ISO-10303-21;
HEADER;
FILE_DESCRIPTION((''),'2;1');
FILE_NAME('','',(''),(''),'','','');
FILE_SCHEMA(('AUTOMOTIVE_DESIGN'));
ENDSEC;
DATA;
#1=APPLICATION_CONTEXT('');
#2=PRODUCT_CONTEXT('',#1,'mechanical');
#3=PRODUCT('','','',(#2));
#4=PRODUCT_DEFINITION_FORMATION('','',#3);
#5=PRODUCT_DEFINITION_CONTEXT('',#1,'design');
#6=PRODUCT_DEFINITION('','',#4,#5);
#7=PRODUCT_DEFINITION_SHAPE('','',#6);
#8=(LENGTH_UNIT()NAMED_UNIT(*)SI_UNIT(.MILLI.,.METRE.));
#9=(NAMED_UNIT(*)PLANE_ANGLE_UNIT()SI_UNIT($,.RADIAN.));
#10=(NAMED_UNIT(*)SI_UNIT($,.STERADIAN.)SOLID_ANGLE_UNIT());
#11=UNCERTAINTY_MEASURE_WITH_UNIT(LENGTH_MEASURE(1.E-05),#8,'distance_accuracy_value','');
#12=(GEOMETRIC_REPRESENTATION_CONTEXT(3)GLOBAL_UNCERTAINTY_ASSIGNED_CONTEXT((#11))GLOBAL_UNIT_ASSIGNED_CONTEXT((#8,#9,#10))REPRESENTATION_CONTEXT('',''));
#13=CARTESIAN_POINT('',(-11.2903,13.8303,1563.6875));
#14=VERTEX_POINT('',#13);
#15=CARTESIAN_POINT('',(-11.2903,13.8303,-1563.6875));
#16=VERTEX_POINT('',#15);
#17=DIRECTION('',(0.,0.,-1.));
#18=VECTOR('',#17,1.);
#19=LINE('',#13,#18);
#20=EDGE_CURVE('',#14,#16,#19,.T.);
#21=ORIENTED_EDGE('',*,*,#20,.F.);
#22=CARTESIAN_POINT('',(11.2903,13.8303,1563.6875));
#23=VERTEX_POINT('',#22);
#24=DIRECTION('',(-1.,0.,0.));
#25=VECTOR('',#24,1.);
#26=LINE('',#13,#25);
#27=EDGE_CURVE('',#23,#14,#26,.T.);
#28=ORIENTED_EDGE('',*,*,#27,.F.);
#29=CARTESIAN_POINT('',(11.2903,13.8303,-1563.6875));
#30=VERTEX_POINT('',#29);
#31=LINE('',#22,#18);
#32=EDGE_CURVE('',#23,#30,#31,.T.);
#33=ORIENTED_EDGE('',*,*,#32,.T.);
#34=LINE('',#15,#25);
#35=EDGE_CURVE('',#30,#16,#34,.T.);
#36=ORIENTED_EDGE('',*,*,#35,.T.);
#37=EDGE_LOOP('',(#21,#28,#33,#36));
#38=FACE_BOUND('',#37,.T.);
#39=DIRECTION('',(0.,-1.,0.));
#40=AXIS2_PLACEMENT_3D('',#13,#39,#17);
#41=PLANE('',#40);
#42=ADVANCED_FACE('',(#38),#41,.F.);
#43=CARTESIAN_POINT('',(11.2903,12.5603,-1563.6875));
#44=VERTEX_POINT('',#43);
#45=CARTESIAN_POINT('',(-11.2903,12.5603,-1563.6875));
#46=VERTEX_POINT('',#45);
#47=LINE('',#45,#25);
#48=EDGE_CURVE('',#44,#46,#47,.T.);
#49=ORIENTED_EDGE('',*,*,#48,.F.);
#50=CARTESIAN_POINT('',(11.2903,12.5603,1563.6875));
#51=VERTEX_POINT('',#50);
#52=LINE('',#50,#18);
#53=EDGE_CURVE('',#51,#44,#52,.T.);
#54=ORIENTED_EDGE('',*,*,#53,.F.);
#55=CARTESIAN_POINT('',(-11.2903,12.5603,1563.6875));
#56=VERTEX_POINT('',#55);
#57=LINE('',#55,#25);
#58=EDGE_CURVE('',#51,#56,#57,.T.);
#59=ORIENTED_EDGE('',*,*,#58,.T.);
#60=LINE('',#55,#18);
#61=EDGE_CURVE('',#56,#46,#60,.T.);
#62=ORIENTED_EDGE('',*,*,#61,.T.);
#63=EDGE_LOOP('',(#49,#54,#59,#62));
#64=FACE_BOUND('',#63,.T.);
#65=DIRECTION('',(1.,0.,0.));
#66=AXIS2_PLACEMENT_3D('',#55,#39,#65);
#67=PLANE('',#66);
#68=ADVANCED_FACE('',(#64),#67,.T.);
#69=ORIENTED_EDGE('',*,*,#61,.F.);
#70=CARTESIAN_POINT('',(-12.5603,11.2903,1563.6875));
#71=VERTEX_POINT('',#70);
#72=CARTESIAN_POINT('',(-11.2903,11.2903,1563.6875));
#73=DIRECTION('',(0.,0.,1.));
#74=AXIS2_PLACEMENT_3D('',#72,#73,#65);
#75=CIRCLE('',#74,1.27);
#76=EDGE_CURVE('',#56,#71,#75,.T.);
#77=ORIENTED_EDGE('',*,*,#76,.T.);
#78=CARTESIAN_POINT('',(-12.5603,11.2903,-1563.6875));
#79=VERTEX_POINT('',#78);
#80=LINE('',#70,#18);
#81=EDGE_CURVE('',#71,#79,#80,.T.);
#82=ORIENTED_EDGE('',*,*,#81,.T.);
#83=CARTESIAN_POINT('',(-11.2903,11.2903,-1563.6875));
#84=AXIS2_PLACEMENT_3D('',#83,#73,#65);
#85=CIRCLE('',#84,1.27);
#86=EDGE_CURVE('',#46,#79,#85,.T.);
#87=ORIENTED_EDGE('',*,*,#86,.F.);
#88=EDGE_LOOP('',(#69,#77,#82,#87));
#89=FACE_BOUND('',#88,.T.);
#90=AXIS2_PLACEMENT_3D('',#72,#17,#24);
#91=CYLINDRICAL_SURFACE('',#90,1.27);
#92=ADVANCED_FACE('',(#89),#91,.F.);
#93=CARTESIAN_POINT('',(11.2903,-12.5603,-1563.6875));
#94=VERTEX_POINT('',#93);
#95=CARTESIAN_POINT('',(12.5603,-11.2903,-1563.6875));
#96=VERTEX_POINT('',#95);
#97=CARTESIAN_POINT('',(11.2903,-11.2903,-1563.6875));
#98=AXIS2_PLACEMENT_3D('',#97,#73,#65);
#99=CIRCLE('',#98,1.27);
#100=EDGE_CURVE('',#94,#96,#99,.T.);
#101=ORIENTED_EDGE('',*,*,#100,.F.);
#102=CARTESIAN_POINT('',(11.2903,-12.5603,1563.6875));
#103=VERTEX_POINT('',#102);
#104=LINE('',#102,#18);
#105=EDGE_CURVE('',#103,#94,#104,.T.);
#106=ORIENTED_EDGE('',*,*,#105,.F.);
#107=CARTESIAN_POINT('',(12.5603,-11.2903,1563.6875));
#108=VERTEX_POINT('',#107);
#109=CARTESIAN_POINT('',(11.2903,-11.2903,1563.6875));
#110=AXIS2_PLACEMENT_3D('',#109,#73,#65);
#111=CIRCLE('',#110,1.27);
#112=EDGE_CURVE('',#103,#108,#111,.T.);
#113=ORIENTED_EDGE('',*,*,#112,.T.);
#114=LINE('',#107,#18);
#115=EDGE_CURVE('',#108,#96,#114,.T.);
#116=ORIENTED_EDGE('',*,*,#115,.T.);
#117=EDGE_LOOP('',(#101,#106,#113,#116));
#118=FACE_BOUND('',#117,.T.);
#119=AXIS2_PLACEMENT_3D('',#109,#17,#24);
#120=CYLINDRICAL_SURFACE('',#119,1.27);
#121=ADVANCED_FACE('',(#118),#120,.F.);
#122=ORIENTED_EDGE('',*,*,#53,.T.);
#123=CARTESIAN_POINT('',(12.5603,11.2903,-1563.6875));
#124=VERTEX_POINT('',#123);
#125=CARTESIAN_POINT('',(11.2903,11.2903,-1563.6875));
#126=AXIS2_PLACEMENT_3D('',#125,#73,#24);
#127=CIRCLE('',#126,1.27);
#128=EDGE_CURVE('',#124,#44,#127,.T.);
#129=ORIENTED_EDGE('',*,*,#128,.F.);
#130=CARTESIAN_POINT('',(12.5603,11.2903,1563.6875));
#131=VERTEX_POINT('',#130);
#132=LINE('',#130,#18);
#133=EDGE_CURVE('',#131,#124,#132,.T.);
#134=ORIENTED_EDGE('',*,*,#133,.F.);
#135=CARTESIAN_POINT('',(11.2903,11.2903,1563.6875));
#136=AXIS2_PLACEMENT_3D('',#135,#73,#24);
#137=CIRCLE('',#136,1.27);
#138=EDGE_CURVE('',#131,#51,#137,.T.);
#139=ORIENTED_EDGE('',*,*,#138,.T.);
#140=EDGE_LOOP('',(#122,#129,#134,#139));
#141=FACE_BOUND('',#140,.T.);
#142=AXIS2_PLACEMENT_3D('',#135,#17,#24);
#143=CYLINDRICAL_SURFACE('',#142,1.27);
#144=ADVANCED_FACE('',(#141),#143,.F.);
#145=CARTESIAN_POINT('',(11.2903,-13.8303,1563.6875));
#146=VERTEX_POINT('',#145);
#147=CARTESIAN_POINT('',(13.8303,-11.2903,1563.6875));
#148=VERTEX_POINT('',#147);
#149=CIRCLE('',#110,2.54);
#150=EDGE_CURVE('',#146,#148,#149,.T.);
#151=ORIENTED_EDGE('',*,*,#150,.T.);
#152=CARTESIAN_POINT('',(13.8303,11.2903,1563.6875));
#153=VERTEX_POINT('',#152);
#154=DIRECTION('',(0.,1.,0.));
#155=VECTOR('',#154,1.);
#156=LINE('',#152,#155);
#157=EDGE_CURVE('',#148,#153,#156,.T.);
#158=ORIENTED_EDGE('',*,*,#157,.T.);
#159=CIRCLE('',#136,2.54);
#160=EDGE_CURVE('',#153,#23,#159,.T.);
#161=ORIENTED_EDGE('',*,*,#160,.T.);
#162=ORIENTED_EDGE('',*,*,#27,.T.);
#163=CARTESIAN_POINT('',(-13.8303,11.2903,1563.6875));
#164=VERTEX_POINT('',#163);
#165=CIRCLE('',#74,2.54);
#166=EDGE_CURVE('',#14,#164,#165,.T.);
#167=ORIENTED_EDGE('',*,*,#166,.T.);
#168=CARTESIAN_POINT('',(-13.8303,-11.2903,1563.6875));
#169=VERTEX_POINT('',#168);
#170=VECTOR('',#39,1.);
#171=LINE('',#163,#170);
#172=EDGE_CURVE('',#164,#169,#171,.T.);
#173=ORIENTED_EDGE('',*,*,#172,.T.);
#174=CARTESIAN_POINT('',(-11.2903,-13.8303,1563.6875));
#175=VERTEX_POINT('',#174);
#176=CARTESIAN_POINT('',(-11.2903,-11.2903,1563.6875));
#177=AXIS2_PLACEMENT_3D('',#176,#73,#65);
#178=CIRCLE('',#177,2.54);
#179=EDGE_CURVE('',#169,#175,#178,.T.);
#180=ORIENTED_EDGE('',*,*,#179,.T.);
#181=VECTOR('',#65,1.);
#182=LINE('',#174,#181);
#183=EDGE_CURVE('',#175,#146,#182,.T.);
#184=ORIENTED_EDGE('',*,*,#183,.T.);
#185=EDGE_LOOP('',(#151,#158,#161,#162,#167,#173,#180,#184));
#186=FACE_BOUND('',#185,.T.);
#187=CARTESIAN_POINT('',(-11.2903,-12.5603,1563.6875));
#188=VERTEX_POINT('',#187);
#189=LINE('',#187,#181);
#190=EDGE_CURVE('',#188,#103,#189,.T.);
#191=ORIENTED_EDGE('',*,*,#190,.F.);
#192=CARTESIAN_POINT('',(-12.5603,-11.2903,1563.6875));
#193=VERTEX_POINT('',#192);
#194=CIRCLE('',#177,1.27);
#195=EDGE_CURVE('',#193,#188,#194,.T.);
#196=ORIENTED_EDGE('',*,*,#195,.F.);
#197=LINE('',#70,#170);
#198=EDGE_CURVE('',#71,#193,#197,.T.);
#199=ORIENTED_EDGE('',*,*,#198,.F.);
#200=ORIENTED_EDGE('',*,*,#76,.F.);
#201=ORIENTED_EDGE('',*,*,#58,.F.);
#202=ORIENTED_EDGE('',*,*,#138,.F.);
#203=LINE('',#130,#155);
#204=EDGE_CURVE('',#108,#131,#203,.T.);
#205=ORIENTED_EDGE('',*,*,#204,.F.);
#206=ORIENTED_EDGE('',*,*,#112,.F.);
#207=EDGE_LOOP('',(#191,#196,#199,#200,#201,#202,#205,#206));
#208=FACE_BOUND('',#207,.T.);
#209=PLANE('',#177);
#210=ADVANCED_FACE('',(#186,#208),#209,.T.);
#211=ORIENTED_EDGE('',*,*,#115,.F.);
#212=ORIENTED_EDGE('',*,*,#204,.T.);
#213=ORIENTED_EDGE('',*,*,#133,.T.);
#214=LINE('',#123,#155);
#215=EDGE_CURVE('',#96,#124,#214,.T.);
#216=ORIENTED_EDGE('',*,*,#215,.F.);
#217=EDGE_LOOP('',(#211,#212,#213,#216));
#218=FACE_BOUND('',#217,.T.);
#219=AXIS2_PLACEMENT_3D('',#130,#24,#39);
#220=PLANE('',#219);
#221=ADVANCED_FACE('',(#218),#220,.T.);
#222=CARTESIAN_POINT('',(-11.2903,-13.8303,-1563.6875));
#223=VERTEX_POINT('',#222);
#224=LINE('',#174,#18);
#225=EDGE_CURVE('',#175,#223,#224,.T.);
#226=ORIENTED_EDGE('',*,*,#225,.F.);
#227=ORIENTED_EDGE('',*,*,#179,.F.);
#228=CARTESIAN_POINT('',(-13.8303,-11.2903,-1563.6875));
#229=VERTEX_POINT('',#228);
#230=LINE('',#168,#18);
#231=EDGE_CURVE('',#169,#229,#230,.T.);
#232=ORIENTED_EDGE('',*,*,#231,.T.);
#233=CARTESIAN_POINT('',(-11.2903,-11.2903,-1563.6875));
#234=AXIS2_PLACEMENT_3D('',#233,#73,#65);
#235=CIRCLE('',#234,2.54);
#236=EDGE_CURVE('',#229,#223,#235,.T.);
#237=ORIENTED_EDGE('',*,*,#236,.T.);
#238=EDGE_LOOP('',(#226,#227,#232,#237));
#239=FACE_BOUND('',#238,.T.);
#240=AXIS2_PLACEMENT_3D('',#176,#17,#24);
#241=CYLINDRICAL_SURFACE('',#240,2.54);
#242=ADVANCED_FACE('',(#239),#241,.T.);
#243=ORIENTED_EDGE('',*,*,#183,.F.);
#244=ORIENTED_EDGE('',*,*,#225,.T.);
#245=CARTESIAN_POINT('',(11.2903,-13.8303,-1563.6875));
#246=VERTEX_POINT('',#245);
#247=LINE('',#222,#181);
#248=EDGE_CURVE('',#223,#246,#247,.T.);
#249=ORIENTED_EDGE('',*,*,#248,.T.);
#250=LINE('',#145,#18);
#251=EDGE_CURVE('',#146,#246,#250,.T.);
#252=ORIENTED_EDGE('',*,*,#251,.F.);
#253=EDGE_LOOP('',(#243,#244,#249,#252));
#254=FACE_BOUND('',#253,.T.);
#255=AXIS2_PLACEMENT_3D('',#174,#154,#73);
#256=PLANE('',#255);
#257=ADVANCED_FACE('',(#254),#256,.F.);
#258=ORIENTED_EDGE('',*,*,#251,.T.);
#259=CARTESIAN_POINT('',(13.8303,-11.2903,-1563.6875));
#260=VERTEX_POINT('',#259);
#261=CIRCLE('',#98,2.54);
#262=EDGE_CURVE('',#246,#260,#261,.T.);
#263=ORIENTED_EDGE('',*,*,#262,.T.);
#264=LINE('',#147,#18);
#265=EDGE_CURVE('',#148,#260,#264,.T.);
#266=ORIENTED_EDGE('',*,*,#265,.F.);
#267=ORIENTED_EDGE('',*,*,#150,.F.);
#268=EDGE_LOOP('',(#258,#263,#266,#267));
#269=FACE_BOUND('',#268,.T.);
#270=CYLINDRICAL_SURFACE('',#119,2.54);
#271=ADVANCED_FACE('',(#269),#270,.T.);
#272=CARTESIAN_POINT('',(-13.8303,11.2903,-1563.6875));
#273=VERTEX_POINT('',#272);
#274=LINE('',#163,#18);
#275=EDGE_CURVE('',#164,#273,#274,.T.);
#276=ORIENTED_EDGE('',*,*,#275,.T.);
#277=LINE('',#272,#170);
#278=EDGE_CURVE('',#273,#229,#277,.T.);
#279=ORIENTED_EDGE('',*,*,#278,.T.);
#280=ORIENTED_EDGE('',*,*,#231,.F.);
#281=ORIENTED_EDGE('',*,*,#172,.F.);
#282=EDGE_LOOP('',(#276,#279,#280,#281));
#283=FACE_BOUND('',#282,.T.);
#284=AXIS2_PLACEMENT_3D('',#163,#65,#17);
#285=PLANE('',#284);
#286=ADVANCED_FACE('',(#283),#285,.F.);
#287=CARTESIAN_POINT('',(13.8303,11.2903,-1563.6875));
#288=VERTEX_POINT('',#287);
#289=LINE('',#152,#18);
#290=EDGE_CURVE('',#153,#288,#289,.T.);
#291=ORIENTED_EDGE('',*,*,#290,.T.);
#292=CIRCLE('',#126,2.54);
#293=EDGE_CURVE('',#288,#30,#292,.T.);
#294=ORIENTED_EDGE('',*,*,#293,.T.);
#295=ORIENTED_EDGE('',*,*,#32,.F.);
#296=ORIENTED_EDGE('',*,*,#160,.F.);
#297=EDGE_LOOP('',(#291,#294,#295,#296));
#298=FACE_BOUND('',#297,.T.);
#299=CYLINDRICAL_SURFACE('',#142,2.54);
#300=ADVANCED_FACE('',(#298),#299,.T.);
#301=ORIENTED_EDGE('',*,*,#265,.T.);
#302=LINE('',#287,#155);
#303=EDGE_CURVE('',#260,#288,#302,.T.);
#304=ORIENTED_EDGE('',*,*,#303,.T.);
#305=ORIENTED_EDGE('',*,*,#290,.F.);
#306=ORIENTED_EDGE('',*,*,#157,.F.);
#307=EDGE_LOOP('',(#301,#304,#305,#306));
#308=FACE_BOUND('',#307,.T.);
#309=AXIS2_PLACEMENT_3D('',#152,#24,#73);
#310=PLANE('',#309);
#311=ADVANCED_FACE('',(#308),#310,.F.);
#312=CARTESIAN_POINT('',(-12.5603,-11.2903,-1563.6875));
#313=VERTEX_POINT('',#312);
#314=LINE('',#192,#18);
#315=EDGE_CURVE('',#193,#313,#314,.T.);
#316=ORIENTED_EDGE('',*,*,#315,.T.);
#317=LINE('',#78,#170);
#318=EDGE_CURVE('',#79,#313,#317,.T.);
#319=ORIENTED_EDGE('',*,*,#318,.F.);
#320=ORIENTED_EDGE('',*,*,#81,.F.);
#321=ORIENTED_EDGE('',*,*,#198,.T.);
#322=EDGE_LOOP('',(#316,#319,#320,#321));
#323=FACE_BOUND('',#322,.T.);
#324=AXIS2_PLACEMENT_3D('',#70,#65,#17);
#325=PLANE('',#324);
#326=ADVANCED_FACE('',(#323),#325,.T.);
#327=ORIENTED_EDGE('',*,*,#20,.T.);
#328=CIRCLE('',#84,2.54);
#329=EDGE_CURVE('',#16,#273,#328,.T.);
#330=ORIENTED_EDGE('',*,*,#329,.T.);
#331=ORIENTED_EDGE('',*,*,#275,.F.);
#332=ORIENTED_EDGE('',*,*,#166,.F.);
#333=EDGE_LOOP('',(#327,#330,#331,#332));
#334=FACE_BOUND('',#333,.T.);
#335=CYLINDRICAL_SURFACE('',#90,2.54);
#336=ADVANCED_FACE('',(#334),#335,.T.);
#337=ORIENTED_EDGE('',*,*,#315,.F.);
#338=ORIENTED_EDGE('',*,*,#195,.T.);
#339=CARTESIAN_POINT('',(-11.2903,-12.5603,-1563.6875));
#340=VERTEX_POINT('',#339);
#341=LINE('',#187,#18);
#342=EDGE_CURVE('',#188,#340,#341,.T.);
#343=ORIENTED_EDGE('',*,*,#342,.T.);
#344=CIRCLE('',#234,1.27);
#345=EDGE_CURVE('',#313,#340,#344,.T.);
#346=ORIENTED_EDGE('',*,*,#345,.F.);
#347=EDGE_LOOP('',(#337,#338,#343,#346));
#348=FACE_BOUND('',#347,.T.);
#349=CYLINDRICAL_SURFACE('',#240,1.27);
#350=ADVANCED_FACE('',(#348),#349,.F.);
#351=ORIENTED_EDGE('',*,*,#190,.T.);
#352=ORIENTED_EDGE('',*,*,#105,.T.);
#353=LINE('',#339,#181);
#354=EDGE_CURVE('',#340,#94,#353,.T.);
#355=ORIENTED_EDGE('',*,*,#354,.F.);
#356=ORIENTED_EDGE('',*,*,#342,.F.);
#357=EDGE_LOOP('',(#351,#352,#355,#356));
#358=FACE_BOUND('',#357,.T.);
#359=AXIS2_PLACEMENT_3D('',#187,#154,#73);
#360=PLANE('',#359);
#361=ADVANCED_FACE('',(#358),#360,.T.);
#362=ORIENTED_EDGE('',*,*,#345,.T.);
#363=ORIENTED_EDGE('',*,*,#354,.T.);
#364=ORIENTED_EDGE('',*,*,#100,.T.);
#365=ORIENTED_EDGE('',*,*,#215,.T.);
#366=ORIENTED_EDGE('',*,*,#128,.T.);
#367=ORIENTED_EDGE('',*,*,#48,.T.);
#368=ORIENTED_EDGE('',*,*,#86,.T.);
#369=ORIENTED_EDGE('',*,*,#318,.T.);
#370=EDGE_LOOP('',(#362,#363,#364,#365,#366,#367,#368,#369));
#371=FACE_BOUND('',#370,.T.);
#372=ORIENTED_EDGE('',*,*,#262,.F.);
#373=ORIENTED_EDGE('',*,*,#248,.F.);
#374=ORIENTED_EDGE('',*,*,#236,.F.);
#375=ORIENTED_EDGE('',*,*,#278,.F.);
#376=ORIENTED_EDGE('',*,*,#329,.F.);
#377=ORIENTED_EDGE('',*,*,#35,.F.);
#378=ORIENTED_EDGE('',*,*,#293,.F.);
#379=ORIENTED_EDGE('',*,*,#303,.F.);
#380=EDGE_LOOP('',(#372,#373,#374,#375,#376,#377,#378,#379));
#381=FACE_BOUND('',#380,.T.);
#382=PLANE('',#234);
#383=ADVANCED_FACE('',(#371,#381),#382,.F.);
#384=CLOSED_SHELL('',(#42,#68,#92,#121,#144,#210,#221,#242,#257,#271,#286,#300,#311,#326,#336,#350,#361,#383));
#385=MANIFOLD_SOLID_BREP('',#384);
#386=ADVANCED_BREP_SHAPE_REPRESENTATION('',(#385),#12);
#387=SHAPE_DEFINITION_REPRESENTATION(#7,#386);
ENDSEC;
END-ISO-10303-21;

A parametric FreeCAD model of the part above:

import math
import FreeCAD as App
import Part
import Sketcher
Q = App.Units.Quantity

doc = App.newDocument("Part")
body = doc.addObject("PartDesign::Body", "Body")

# Sketch on XY plane
sketch1 = doc.addObject("Sketcher::SketchObject", "Sketch")
body.addObject(sketch1)
sketch1.AttachmentSupport = (doc.XY_Plane, [""])
sketch1.MapMode = "FlatFace"
sketch1.addGeometry([
    Part.LineSegment(App.Vector(11.3, 13.8, 0), App.Vector(-11.3, 13.8, 0)),  # 0
    Part.ArcOfCircle(Part.Circle(App.Vector(-11.3, 11.3, 0), App.Vector(0, 0, 1), 2.5), math.radians(90), math.radians(180)),  # 1
    Part.LineSegment(App.Vector(-13.8, 11.3, 0), App.Vector(-13.8, -11.3, 0)),  # 2
    Part.ArcOfCircle(Part.Circle(App.Vector(-11.3, -11.3, 0), App.Vector(0, 0, 1), 2.5), math.radians(-180), math.radians(-90)),  # 3
    Part.LineSegment(App.Vector(-11.3, -13.8, 0), App.Vector(11.3, -13.8, 0)),  # 4
    Part.ArcOfCircle(Part.Circle(App.Vector(11.3, -11.3, 0), App.Vector(0, 0, 1), 2.5), math.radians(-90), math.radians(0)),  # 5
    Part.LineSegment(App.Vector(13.8, -11.3, 0), App.Vector(13.8, 11.3, 0)),  # 6
    Part.ArcOfCircle(Part.Circle(App.Vector(11.3, 11.3, 0), App.Vector(0, 0, 1), 2.5), math.radians(0), math.radians(90)),  # 7
    Part.ArcOfCircle(Part.Circle(App.Vector(-11.3, 11.3, 0), App.Vector(0, 0, 1), 1.3), math.radians(90), math.radians(180)),  # 8
    Part.LineSegment(App.Vector(-11.3, 12.6, 0), App.Vector(11.3, 12.6, 0)),  # 9
    Part.ArcOfCircle(Part.Circle(App.Vector(11.3, 11.3, 0), App.Vector(0, 0, 1), 1.3), math.radians(0), math.radians(90)),  # 10
    Part.LineSegment(App.Vector(12.6, 11.3, 0), App.Vector(12.6, -11.3, 0)),  # 11
    Part.ArcOfCircle(Part.Circle(App.Vector(11.3, -11.3, 0), App.Vector(0, 0, 1), 1.3), math.radians(-90), math.radians(0)),  # 12
    Part.LineSegment(App.Vector(11.3, -12.6, 0), App.Vector(-11.3, -12.6, 0)),  # 13
    Part.ArcOfCircle(Part.Circle(App.Vector(-11.3, -11.3, 0), App.Vector(0, 0, 1), 1.3), math.radians(180), math.radians(270)),  # 14
    Part.LineSegment(App.Vector(-12.6, -11.3, 0), App.Vector(-12.6, 11.3, 0)),  # 15
], False)
sketch1.addConstraint([
    Sketcher.Constraint("Tangent", 0, 2, 1, 1),
    Sketcher.Constraint("Tangent", 1, 2, 2, 1),
    Sketcher.Constraint("Tangent", 2, 2, 3, 1),
    Sketcher.Constraint("Tangent", 3, 2, 4, 1),
    Sketcher.Constraint("Tangent", 4, 2, 5, 1),
    Sketcher.Constraint("Tangent", 5, 2, 6, 1),
    Sketcher.Constraint("Tangent", 6, 2, 7, 1),
    Sketcher.Constraint("Tangent", 7, 2, 0, 1),
    Sketcher.Constraint("Tangent", 8, 1, 9, 1),
    Sketcher.Constraint("Tangent", 9, 2, 10, 2),
    Sketcher.Constraint("Tangent", 10, 1, 11, 1),
    Sketcher.Constraint("Tangent", 11, 2, 12, 2),
    Sketcher.Constraint("Tangent", 12, 1, 13, 1),
    Sketcher.Constraint("Tangent", 13, 2, 14, 2),
    Sketcher.Constraint("Tangent", 14, 1, 15, 1),
    Sketcher.Constraint("Tangent", 15, 2, 8, 2),
    Sketcher.Constraint("Horizontal", 0),
    Sketcher.Constraint("Vertical", 2),
    Sketcher.Constraint("Horizontal", 4),
    Sketcher.Constraint("Vertical", 6),
    Sketcher.Constraint("Horizontal", 9),
    Sketcher.Constraint("Vertical", 11),
    Sketcher.Constraint("Horizontal", 13),
    Sketcher.Constraint("Vertical", 15),
    Sketcher.Constraint("Coincident", 8, 3, 1, 3),
    Sketcher.Constraint("Coincident", 10, 3, 7, 3),
    Sketcher.Constraint("Coincident", 12, 3, 5, 3),
    Sketcher.Constraint("Equal", 1, 3),
    Sketcher.Constraint("Equal", 3, 5),
    Sketcher.Constraint("Equal", 5, 7),
    Sketcher.Constraint("Equal", 12, 14),
    Sketcher.Constraint("Symmetric", 1, 3, 5, 3, -1, 1),
    Sketcher.Constraint("Equal", 13, 2),
    Sketcher.Constraint("Radius", 1, Q("0.1 in")),
    Sketcher.Constraint("Radius", 8, Q("0.05 in")),
    Sketcher.Constraint("DistanceX", 0, 2, 0, 1, Q("0.889 in")),
])
pad1 = doc.addObject("PartDesign::Pad", "Pad")
body.addObject(pad1)
pad1.Profile = sketch1
pad1.Length = Q("123.125 in")
pad1.Midplane = True

doc.recompute()
